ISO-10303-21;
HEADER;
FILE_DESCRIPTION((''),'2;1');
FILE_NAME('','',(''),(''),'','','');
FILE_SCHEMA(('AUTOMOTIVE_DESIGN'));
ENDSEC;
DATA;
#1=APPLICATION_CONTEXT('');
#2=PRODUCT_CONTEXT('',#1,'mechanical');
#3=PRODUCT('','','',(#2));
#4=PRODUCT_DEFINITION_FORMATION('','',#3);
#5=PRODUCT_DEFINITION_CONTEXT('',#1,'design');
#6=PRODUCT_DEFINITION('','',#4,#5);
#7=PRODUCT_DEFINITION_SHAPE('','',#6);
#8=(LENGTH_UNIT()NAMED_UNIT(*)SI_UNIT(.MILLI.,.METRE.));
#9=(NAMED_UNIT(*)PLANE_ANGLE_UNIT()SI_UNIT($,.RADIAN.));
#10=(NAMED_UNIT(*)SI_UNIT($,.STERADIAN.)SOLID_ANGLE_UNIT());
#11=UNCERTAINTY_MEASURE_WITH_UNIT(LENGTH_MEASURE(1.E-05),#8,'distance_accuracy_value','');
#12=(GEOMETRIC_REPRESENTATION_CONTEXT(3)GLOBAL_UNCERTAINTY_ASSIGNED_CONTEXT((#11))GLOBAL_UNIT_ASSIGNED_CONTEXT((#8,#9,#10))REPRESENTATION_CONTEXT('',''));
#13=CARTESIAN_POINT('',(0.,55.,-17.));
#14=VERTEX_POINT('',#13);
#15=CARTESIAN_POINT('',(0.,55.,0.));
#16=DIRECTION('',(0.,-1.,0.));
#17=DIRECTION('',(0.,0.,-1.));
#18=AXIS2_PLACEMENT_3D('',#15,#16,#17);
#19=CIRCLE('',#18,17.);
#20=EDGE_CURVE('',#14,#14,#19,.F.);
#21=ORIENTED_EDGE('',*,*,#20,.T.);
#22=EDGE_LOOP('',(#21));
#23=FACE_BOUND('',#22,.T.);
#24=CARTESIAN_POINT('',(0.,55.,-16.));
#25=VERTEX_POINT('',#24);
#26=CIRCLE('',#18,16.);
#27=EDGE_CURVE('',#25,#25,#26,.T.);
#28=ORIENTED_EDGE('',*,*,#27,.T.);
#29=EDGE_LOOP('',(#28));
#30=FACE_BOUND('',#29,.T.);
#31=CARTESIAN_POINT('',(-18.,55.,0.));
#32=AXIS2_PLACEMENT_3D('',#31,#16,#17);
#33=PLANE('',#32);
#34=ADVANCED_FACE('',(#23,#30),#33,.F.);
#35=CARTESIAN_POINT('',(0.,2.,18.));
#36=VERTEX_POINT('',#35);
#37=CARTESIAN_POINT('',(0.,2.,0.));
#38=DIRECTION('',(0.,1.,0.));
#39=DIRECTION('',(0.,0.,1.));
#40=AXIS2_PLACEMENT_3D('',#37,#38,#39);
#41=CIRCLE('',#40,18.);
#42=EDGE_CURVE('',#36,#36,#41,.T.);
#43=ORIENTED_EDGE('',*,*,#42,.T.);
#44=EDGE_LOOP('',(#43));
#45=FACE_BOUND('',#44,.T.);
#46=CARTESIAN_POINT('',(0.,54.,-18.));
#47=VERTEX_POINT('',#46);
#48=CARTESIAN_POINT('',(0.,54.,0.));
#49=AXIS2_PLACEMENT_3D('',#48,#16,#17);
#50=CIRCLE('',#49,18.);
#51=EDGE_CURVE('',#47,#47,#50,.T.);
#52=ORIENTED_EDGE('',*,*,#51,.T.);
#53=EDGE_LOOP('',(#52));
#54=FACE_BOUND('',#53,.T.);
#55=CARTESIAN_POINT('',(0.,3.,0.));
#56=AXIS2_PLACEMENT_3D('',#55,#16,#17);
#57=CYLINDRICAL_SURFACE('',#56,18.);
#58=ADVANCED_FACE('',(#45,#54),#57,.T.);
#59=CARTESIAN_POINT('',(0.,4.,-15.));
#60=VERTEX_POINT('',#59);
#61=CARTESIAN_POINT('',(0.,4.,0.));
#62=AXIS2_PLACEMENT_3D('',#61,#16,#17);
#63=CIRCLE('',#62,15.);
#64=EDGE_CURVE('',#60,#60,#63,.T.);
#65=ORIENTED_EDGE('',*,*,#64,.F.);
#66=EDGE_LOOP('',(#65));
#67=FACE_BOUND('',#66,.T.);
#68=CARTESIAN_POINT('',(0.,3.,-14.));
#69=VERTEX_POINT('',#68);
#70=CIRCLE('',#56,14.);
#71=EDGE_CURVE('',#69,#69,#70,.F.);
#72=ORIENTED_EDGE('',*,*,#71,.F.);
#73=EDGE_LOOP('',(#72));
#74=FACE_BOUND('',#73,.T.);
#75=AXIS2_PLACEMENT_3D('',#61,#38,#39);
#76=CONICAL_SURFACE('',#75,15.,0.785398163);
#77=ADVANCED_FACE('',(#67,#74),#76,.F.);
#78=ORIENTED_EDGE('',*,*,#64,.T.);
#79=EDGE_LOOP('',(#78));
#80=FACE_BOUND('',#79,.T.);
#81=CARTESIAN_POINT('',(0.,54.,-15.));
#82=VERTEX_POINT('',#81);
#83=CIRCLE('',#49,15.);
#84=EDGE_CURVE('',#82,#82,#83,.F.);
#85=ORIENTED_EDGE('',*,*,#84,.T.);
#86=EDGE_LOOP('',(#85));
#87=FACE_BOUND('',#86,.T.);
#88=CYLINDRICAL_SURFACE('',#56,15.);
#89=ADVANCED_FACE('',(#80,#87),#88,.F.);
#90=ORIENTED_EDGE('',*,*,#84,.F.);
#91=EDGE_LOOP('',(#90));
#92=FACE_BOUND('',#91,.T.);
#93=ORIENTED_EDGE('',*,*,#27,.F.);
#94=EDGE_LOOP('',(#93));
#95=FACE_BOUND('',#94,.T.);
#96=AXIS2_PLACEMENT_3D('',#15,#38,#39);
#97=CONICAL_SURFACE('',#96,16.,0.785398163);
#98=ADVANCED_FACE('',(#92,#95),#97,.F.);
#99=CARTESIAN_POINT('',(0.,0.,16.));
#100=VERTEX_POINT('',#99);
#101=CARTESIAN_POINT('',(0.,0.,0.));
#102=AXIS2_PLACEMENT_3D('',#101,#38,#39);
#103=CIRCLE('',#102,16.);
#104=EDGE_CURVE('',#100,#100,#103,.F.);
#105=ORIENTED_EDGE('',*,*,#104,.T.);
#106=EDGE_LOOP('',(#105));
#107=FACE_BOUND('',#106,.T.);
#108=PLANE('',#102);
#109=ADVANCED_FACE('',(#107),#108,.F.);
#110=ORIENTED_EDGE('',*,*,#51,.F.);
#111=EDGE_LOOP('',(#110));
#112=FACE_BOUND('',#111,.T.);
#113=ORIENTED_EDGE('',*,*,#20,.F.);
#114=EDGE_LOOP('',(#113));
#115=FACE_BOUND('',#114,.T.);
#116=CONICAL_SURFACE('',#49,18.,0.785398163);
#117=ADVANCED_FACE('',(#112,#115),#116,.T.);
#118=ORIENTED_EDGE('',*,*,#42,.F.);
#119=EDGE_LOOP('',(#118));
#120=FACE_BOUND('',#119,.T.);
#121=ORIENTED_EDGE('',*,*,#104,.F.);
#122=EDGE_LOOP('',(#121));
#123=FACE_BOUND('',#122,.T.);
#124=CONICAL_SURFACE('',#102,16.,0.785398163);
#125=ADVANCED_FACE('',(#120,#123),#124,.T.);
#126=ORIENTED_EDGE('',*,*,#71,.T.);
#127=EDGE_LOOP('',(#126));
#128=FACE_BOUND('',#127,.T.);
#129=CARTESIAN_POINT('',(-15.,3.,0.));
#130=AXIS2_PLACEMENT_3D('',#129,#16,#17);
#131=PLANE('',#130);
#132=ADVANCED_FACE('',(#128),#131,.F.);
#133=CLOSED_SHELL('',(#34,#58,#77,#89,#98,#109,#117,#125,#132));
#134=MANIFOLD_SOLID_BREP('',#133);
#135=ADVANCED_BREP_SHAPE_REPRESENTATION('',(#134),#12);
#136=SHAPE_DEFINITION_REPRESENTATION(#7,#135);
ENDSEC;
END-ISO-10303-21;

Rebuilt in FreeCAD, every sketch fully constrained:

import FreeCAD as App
import Part
import Sketcher
from FreeCAD import Vector


def edges_at(feature, points):
    """Names of the edges that pass closest to the given points."""
    edges = feature.Shape.Edges
    near = lambda p: min(range(len(edges)), key=lambda i: edges[i].distToShape(Part.Vertex(*p))[0])
    return sorted({f"Edge{near(p) + 1}" for p in points})


def add_polygon(sketch, points):
    """Adds a closed chain of lines whose ends are joined by coincident constraints."""
    first, n = sketch.GeometryCount, len(points)
    for a, b in zip(points, points[1:] + points[:1]):
        sketch.addGeometry(Part.LineSegment(App.Vector(*a, 0), App.Vector(*b, 0)), False)
    for i in range(n):
        sketch.addConstraint(Sketcher.Constraint("Coincident", first + i, 2, first + (i + 1) % n, 1))

doc = App.newDocument("Part")
body = doc.addObject("PartDesign::Body", "Body")

# Sketch on XY plane
sketch1 = body.newObject("Sketcher::SketchObject", "Sketch")
sketch1.AttachmentSupport = (doc.getObject("XY_Plane"), [""])
sketch1.MapMode = "FlatFace"
add_polygon(sketch1, [(-18, 0), (0, 0), (0, 3), (-15, 3), (-15, 55), (-18, 55)])  # lines 0-5
sketch1.addConstraint(Sketcher.Constraint("Horizontal", 0))
sketch1.addConstraint(Sketcher.Constraint("Vertical", 1))
sketch1.addConstraint(Sketcher.Constraint("Horizontal", 2))
sketch1.addConstraint(Sketcher.Constraint("Vertical", 3))
sketch1.addConstraint(Sketcher.Constraint("Horizontal", 4))
sketch1.addConstraint(Sketcher.Constraint("Vertical", 5))
sketch1.addConstraint(Sketcher.Constraint("Coincident", 0, 2, -1, 1))
sketch1.addConstraint(Sketcher.Constraint("Equal", 4, 1))
sketch1.addConstraint(Sketcher.Constraint("DistanceX", 0, 1, 0, 2, 18.0))
sketch1.addConstraint(Sketcher.Constraint("DistanceX", 2, 2, 2, 1, 15.0))
sketch1.addConstraint(Sketcher.Constraint("DistanceY", 3, 1, 3, 2, 52.0))
revolution = body.newObject("PartDesign::Revolution", "Revolution")
revolution.Profile = sketch1
revolution.ReferenceAxis = (sketch1, ["V_Axis"])
revolution.Angle = 360
doc.recompute()

chamfer = body.newObject("PartDesign::Chamfer", "Chamfer")
chamfer.Base = (revolution, edges_at(revolution, [(18, 0, 0)]))
chamfer.Size = 2
doc.recompute()

chamfer2 = body.newObject("PartDesign::Chamfer", "Chamfer001")
chamfer2.Base = (chamfer, edges_at(chamfer, [(15, 55, 0), (18, 55, 0)]))
chamfer2.Size = 1
doc.recompute()

chamfer3 = body.newObject("PartDesign::Chamfer", "Chamfer002")
chamfer3.Base = (chamfer2, edges_at(chamfer2, [(15, 3, 0)]))
chamfer3.Size = 1

doc.recompute()
